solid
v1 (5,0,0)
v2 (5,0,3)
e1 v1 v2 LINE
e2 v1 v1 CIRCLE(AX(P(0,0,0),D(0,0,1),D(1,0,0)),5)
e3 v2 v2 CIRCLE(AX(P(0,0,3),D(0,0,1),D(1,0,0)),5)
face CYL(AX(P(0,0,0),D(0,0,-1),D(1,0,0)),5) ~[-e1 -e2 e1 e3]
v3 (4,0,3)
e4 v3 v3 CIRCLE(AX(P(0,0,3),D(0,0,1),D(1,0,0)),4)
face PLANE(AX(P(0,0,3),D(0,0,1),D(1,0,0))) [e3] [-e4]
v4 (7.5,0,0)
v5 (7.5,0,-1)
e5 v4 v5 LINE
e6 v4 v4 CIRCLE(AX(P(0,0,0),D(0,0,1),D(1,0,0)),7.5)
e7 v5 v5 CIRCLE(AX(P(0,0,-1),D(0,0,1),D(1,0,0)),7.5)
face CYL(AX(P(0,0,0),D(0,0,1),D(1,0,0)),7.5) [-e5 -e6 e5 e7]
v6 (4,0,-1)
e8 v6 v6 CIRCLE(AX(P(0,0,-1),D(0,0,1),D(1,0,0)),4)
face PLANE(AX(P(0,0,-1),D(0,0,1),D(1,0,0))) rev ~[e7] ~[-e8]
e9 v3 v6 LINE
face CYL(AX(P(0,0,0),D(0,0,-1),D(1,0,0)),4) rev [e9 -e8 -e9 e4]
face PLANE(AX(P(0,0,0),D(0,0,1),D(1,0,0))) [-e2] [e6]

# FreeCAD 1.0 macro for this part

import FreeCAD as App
import Part
import Sketcher
Q = App.Units.Quantity

doc = App.newDocument("Part")
body = doc.addObject("PartDesign::Body", "Body")

# Sketch on XY plane
sketch1 = body.newObject("Sketcher::SketchObject", "Sketch")
sketch1.AttachmentSupport = (doc.getObject("XY_Plane"), [""])
sketch1.MapMode = "FlatFace"
sketch1.addGeometry([
    Part.Circle(App.Vector(0, 0, 0), App.Vector(0, 0, 1), 5),
    Part.Circle(App.Vector(0, 0, 0), App.Vector(0, 0, 1), 4),
], False)
sketch1.addConstraint([
    Sketcher.Constraint("Coincident", 0, 3, -1, 1),
    Sketcher.Constraint("Coincident", 1, 3, -1, 1),
    Sketcher.Constraint("Diameter", 0, Q("10 mm")),
    Sketcher.Constraint("Diameter", 1, Q("8 mm")),
])
pad1 = body.newObject("PartDesign::Pad", "Pad")
pad1.Profile = sketch1
pad1.Length = 3

# Sketch on XY plane
sketch2 = body.newObject("Sketcher::SketchObject", "Sketch001")
sketch2.AttachmentSupport = (doc.getObject("XY_Plane"), [""])
sketch2.MapMode = "FlatFace"
sketch2.addGeometry([
    Part.Circle(App.Vector(0, 0, 0), App.Vector(0, 0, 1), 7.5),
    Part.Circle(App.Vector(0, 0, 0), App.Vector(0, 0, 1), 4),
], False)
sketch2.addConstraint([
    Sketcher.Constraint("Coincident", 0, 3, -1, 1),
    Sketcher.Constraint("Coincident", 1, 3, -1, 1),
    Sketcher.Constraint("Diameter", 0, Q("15 mm")),
    Sketcher.Constraint("Diameter", 1, Q("8 mm")),
])
pad2 = body.newObject("PartDesign::Pad", "Pad001")
pad2.Profile = sketch2
pad2.Length = 1
pad2.Reversed = True

doc.recompute()
